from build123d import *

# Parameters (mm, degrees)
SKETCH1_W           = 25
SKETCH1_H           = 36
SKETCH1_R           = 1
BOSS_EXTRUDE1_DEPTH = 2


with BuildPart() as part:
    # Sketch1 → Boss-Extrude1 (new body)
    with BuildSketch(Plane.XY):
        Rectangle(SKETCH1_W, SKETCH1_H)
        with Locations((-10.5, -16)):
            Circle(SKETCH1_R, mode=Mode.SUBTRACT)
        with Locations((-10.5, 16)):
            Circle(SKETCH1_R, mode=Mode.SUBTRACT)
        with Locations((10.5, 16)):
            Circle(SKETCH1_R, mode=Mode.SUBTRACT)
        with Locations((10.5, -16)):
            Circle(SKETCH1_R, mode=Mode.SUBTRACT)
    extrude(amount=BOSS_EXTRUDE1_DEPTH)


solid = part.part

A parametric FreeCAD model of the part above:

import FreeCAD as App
import Part
import Sketcher
from FreeCAD import Vector


def add_polygon(sketch, points):
    """Adds a closed chain of lines whose ends are joined by coincident constraints."""
    first, n = sketch.GeometryCount, len(points)
    for a, b in zip(points, points[1:] + points[:1]):
        sketch.addGeometry(Part.LineSegment(App.Vector(*a, 0), App.Vector(*b, 0)), False)
    for i in range(n):
        sketch.addConstraint(Sketcher.Constraint("Coincident", first + i, 2, first + (i + 1) % n, 1))

doc = App.newDocument("Part")
params = doc.addObject("Spreadsheet::Sheet", "Params")
for row, (alias, value) in enumerate([
    ("sketch1_diameter", "2 mm"),
    ("sketch1_width", "25 mm"),
    ("sketch1_height", "36 mm"),
    ("pad1_length", "2 mm"),
], start=1):
    params.set(f"A{row}", alias)
    params.set(f"B{row}", "=" + value)
    params.setAlias(f"B{row}", alias)

body = doc.addObject("PartDesign::Body", "Body")

sketch1 = body.newObject("Sketcher::SketchObject", "Sketch")
sketch1.AttachmentSupport = (doc.getObject("XY_Plane"), [""])
sketch1.MapMode = "FlatFace"
add_polygon(sketch1, [(-12.5, 18), (-12.5, -18), (12.5, -18), (12.5, 18)])
sketch1.addGeometry(Part.Circle(Vector(-10.5, -16, 0), Vector(0, 0, 1), 1), False)
sketch1.addGeometry(Part.Circle(Vector(10.5, -16, 0), Vector(0, 0, 1), 1), False)
sketch1.addGeometry(Part.Circle(Vector(-10.5, 16, 0), Vector(0, 0, 1), 1), False)
sketch1.addGeometry(Part.Circle(Vector(10.5, 16, 0), Vector(0, 0, 1), 1), False)
sketch1.addConstraint([
    Sketcher.Constraint("Vertical", 0),
    Sketcher.Constraint("Horizontal", 1),
    Sketcher.Constraint("Vertical", 2),
    Sketcher.Constraint("Horizontal", 3),
    Sketcher.Constraint("Equal", 4, 5),
    Sketcher.Constraint("Equal", 5, 6),
    Sketcher.Constraint("Equal", 6, 7),
    Sketcher.Constraint("Symmetric", 5, 3, 6, 3, -1, 1),
    Sketcher.Constraint("Symmetric", 4, 3, 7, 3, -1, 1),
    Sketcher.Constraint("Symmetric", 0, 2, 2, 2, -1, 1),
    Sketcher.Constraint("Symmetric", 4, 3, 5, 3, -2),
    Sketcher.Constraint("Diameter", 4, 2.0),
    Sketcher.Constraint("DistanceX", 1, 1, 1, 2, 25.0),
    Sketcher.Constraint("DistanceY", 0, 2, 0, 1, 36.0),
    Sketcher.Constraint("DistanceY", 4, 3, -1, 1, 16.0),
    Sketcher.Constraint("DistanceX", 4, 3, 5, 3, 21.0),
])
sketch1.setExpression("Constraints[15]", "Params.sketch1_diameter")
sketch1.setExpression("Constraints[16]", "Params.sketch1_width")
sketch1.setExpression("Constraints[17]", "Params.sketch1_height")
pad1 = body.newObject("PartDesign::Pad", "Pad")
pad1.Profile = sketch1
pad1.setExpression("Length", "Params.pad1_length")

doc.recompute()
